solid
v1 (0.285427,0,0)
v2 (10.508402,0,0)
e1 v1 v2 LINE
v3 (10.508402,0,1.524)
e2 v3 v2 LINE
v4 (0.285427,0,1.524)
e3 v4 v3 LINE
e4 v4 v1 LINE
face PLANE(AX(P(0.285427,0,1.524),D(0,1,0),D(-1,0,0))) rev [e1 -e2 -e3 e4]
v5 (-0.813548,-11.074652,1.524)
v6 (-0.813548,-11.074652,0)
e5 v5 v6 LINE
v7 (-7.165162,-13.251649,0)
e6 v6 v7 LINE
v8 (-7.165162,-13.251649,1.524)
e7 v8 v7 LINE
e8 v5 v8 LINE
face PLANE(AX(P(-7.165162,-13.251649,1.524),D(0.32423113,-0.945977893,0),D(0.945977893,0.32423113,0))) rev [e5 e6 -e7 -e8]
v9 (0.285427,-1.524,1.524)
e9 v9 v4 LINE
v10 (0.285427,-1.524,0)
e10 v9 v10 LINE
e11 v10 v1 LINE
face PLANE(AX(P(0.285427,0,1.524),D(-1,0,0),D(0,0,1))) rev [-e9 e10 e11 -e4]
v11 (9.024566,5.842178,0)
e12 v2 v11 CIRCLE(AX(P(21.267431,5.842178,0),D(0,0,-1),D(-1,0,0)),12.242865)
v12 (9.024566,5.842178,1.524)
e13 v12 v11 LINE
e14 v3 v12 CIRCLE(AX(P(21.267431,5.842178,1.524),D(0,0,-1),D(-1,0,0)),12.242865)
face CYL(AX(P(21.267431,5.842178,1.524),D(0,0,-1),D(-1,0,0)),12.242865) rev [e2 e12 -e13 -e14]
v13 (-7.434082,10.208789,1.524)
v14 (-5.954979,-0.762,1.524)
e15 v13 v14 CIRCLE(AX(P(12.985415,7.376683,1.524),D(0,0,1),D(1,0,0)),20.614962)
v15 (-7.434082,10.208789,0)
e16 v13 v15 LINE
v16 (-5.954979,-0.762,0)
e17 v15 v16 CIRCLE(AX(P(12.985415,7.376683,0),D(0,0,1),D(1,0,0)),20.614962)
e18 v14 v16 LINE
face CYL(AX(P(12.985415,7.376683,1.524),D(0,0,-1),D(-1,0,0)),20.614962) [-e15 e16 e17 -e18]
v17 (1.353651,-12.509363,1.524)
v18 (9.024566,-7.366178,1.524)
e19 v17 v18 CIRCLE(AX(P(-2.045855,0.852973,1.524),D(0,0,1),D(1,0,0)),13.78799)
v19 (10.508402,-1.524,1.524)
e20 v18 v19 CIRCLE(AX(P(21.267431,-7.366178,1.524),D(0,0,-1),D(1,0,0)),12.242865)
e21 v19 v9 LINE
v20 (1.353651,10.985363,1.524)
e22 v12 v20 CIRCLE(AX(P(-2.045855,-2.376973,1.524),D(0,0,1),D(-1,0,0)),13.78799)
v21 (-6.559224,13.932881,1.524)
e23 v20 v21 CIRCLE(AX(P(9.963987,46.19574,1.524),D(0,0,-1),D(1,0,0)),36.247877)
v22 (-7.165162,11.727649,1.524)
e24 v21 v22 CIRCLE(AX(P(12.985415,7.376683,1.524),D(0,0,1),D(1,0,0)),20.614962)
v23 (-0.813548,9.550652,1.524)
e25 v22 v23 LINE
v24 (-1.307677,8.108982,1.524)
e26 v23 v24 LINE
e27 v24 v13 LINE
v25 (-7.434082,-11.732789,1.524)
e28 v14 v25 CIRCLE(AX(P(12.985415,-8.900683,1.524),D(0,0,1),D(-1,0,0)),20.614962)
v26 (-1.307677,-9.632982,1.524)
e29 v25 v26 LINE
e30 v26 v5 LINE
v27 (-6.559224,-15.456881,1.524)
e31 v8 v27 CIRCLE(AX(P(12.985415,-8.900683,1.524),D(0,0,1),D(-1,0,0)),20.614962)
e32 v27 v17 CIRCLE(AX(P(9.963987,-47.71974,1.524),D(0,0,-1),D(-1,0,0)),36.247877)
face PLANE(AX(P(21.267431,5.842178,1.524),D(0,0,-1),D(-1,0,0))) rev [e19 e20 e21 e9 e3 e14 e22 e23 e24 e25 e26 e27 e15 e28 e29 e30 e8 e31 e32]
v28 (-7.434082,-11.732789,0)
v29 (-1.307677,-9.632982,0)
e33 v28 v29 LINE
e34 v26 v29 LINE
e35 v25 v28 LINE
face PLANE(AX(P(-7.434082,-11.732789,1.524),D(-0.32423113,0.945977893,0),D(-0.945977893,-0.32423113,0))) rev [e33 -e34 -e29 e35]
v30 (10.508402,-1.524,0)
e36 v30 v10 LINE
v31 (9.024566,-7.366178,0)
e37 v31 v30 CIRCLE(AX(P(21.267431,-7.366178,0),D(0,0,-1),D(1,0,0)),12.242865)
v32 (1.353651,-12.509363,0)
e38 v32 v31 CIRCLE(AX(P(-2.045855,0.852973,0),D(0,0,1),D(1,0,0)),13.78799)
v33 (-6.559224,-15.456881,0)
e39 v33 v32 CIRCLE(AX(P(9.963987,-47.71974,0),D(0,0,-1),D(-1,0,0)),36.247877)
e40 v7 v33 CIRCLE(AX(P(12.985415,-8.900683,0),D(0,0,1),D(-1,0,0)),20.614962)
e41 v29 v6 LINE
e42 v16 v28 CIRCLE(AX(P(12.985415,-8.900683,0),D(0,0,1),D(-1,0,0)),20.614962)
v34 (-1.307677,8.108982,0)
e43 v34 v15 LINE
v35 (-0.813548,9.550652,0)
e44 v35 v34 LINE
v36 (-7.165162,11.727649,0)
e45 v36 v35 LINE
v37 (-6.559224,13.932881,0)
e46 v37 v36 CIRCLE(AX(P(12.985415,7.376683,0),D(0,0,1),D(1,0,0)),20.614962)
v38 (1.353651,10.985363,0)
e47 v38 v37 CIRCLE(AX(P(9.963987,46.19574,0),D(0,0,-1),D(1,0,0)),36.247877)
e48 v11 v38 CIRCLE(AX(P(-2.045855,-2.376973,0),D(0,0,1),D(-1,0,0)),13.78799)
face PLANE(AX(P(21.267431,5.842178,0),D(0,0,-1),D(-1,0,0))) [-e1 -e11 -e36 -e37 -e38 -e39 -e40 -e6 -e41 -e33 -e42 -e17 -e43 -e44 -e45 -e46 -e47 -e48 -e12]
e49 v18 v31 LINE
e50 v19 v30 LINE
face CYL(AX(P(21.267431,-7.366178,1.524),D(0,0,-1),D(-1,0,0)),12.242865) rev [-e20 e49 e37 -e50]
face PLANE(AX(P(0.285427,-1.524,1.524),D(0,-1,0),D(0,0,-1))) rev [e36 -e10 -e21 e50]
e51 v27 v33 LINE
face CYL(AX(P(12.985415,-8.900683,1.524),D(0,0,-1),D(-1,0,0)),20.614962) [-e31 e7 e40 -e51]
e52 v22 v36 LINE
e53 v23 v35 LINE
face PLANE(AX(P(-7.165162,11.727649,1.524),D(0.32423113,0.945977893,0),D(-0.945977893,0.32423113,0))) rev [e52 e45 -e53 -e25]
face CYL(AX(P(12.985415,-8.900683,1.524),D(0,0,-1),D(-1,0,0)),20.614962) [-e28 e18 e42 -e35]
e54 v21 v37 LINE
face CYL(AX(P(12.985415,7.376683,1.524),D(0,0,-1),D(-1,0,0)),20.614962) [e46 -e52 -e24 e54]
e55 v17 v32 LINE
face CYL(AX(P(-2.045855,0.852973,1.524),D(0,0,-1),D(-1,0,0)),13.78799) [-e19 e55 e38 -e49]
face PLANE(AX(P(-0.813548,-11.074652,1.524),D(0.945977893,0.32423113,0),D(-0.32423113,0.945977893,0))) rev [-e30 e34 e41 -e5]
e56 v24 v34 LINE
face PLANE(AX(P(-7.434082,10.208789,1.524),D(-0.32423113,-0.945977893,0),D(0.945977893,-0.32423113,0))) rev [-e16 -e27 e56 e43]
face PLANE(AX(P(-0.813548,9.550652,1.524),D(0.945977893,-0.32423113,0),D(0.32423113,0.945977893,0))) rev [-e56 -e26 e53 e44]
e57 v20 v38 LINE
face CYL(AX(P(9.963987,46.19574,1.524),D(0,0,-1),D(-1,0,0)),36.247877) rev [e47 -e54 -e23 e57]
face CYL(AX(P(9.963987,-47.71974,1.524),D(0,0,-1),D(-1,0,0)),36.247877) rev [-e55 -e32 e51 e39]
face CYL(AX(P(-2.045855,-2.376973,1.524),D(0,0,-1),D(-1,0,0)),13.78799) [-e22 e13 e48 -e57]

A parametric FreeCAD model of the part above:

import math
import FreeCAD as App
import Part
import Sketcher

V = App.Vector
Q = App.Units.Quantity

doc = App.newDocument("Part")
params = doc.addObject("Spreadsheet::Sheet", "Params")
for row, (alias, value) in enumerate([
    ("sketch1_height", "0.06 in"),
    ("sketch1_length", "0.06 in"),
    ("pad1_length", "0.06 in"),
], start=1):
    params.set(f"A{row}", alias)
    params.set(f"B{row}", "=" + value)
    params.setAlias(f"B{row}", alias)

body = doc.addObject("PartDesign::Body", "Body")

sketch1 = body.newObject("Sketcher::SketchObject", "Sketch")
sketch1.AttachmentSupport = (doc.getObject("XY_Plane"), [""])
sketch1.MapMode = "FlatFace"
sketch1.addGeometry(Part.LineSegment(V(0.3, -1.5, 0), V(0.3, 0, 0)), False)
sketch1.addGeometry(Part.LineSegment(V(0.3, 0, 0), V(10.5, 0, 0)), False)
sketch1.addGeometry(Part.ArcOfCircle(Part.Circle(V(21.3, 5.8, 0), V(0, 0, 1), 12.2), math.radians(180), math.radians(209)), False)
sketch1.addGeometry(Part.ArcOfCircle(Part.Circle(V(-2, -2.4, 0), V(0, 0, 1), 13.8), math.radians(37), math.radians(76)), False)
sketch1.addGeometry(Part.ArcOfCircle(Part.Circle(V(10, 46.2, 0), V(0, 0, 1), 36.2), math.radians(-117.12), math.radians(-103.74)), False)
sketch1.addGeometry(Part.ArcOfCircle(Part.Circle(V(13, 7.4, 0), V(0, 0, 1), 20.6), math.radians(161.46), math.radians(167.82)), False)
sketch1.addGeometry(Part.LineSegment(V(-7.2, 11.7, 0), V(-0.8, 9.6, 0)), False)
sketch1.addGeometry(Part.LineSegment(V(-0.8, 9.6, 0), V(-1.3, 8.1, 0)), False)
sketch1.addGeometry(Part.LineSegment(V(-1.3, 8.1, 0), V(-7.4, 10.2, 0)), False)
sketch1.addGeometry(Part.ArcOfCircle(Part.Circle(V(13, 7.4, 0), V(0, 0, 1), 20.6), math.radians(172), math.radians(203)), False)
sketch1.addGeometry(Part.ArcOfCircle(Part.Circle(V(13, -8.9, 0), V(0, 0, 1), 20.6), math.radians(157), math.radians(188)), False)
sketch1.addGeometry(Part.LineSegment(V(-7.4, -11.7, 0), V(-1.3, -9.6, 0)), False)
sketch1.addGeometry(Part.LineSegment(V(-1.3, -9.6, 0), V(-0.8, -11.1, 0)), False)
sketch1.addGeometry(Part.LineSegment(V(-0.8, -11.1, 0), V(-7.2, -13.3, 0)), False)
sketch1.addGeometry(Part.ArcOfCircle(Part.Circle(V(13, -8.9, 0), V(0, 0, 1), 20.6), math.radians(-167.82), math.radians(-161.46)), False)
sketch1.addGeometry(Part.ArcOfCircle(Part.Circle(V(10, -47.7, 0), V(0, 0, 1), 36.2), math.radians(103.74), math.radians(117.12)), False)
sketch1.addGeometry(Part.ArcOfCircle(Part.Circle(V(-2, 0.9, 0), V(0, 0, 1), 13.8), math.radians(-76), math.radians(-37)), False)
sketch1.addGeometry(Part.ArcOfCircle(Part.Circle(V(21.3, -7.4, 0), V(0, 0, 1), 12.2), math.radians(151), math.radians(180)), False)
sketch1.addGeometry(Part.LineSegment(V(10.5, -1.5, 0), V(0.3, -1.5, 0)), False)
sketch1.addConstraint(Sketcher.Constraint("Coincident", 0, 2, 1, 1))
sketch1.addConstraint(Sketcher.Constraint("Coincident", 1, 2, 2, 2))
sketch1.addConstraint(Sketcher.Constraint("Coincident", 2, 1, 3, 1))
sketch1.addConstraint(Sketcher.Constraint("Coincident", 3, 2, 4, 2))
sketch1.addConstraint(Sketcher.Constraint("Coincident", 4, 1, 5, 1))
sketch1.addConstraint(Sketcher.Constraint("Coincident", 5, 2, 6, 1))
sketch1.addConstraint(Sketcher.Constraint("Coincident", 6, 2, 7, 1))
sketch1.addConstraint(Sketcher.Constraint("Coincident", 7, 2, 8, 1))
sketch1.addConstraint(Sketcher.Constraint("Coincident", 8, 2, 9, 1))
sketch1.addConstraint(Sketcher.Constraint("Coincident", 9, 2, 10, 1))
sketch1.addConstraint(Sketcher.Constraint("Coincident", 10, 2, 11, 1))
sketch1.addConstraint(Sketcher.Constraint("Coincident", 11, 2, 12, 1))
sketch1.addConstraint(Sketcher.Constraint("Coincident", 12, 2, 13, 1))
sketch1.addConstraint(Sketcher.Constraint("Coincident", 13, 2, 14, 1))
sketch1.addConstraint(Sketcher.Constraint("Coincident", 14, 2, 15, 2))
sketch1.addConstraint(Sketcher.Constraint("Coincident", 15, 1, 16, 1))
sketch1.addConstraint(Sketcher.Constraint("Coincident", 16, 2, 17, 2))
sketch1.addConstraint(Sketcher.Constraint("Coincident", 17, 1, 18, 1))
sketch1.addConstraint(Sketcher.Constraint("Coincident", 18, 2, 0, 1))
sketch1.addConstraint(Sketcher.Constraint("Vertical", 0))
sketch1.addConstraint(Sketcher.Constraint("Horizontal", 1))
sketch1.addConstraint(Sketcher.Constraint("Horizontal", 18))
sketch1.addConstraint(Sketcher.Constraint("Coincident", 9, 3, 5, 3))
sketch1.addConstraint(Sketcher.Constraint("Coincident", 14, 3, 10, 3))
sketch1.addConstraint(Sketcher.Constraint("Equal", 5, 9))
sketch1.addConstraint(Sketcher.Constraint("Equal", 9, 10))
sketch1.addConstraint(Sketcher.Constraint("Equal", 10, 14))
sketch1.addConstraint(Sketcher.Constraint("Equal", 4, 15))
sketch1.addConstraint(Sketcher.Constraint("Equal", 3, 16))
sketch1.addConstraint(Sketcher.Constraint("Equal", 2, 17))
sketch1.addConstraint(Sketcher.Constraint("PointOnObject", 0, 2, -1))
sketch1.addConstraint(Sketcher.Constraint("Perpendicular", 6, 7))
sketch1.addConstraint(Sketcher.Constraint("Perpendicular", 7, 8))
sketch1.addConstraint(Sketcher.Constraint("Perpendicular", 11, 12))
sketch1.addConstraint(Sketcher.Constraint("Perpendicular", 12, 13))
sketch1.addConstraint(Sketcher.Constraint("Horizontal", 17, 3, 16, 2))
sketch1.addConstraint(Sketcher.Constraint("Vertical", 9, 3, 10, 3))
sketch1.addConstraint(Sketcher.Constraint("Vertical", 4, 3, 15, 3))
sketch1.addConstraint(Sketcher.Constraint("Vertical", 3, 3, 16, 3))
sketch1.addConstraint(Sketcher.Constraint("Vertical", 2, 3, 17, 3))
sketch1.addConstraint(Sketcher.Constraint("Vertical", 8, 2, 10, 2))
sketch1.addConstraint(Sketcher.Constraint("Vertical", 7, 2, 11, 2))
sketch1.addConstraint(Sketcher.Constraint("Vertical", 6, 2, 12, 2))
sketch1.addConstraint(Sketcher.Constraint("Vertical", 5, 2, 13, 2))
sketch1.addConstraint(Sketcher.Constraint("Vertical", 4, 1, 14, 2))
sketch1.addConstraint(Sketcher.Constraint("Vertical", 3, 2, 15, 1))
sketch1.addConstraint(Sketcher.Constraint("Vertical", 1, 2, 17, 1))
sketch1.addConstraint(Sketcher.Constraint("DistanceY", 0, 1, 0, 2, Q("0.06 in")))
sketch1.addConstraint(Sketcher.Constraint("Distance", 7, Q("0.06 in")))
sketch1.addConstraint(Sketcher.Constraint("DistanceY", 9, 2, -1, 1, Q("0.03 in")))
sketch1.addConstraint(Sketcher.Constraint("Radius", 3, Q("13.78799 mm")))
sketch1.addConstraint(Sketcher.Constraint("Radius", 5, Q("20.614962 mm")))
sketch1.addConstraint(Sketcher.Constraint("Radius", 2, Q("12.242865 mm")))
sketch1.addConstraint(Sketcher.Constraint("Radius", 4, Q("36.247876 mm")))
sketch1.addConstraint(Sketcher.Constraint("DistanceY", 3, 3, 5, 2, Q("0.5553001 in")))
sketch1.addConstraint(Sketcher.Constraint("DistanceX", -1, 1, 1, 2, Q("10.508402 mm")))
sketch1.addConstraint(Sketcher.Constraint("DistanceX", 6, 2, 3, 2, Q("2.167199 mm")))
sketch1.addConstraint(Sketcher.Constraint("DistanceY", 7, 2, 4, 1, Q("5.823899 mm")))
sketch1.addConstraint(Sketcher.Constraint("DistanceX", 1, 1, 1, 2, Q("10.222975 mm")))
sketch1.addConstraint(Sketcher.Constraint("DistanceX", -1, 1, 2, 3, Q("21.267431 mm")))
sketch1.addConstraint(Sketcher.Constraint("DistanceY", -1, 1, 4, 3, Q("46.19574 mm")))
sketch1.addConstraint(Sketcher.Constraint("DistanceX", -1, 1, 3, 2, Q("1.353651 mm")))
sketch1.addConstraint(Sketcher.Constraint("DistanceY", -1, 1, 4, 1, Q("13.932881 mm")))
sketch1.addConstraint(Sketcher.Constraint("DistanceY", -1, 1, 5, 2, Q("11.727649 mm")))
sketch1.addConstraint(Sketcher.Constraint("DistanceX", 8, 2, -1, 1, Q("7.434082 mm")))
sketch1.setExpression("Constraints[47]", "Params.sketch1_height")
sketch1.setExpression("Constraints[48]", "Params.sketch1_length")
pad1 = body.newObject("PartDesign::Pad", "Pad")
pad1.Profile = sketch1
pad1.setExpression("Length", "Params.pad1_length")

doc.recompute()
